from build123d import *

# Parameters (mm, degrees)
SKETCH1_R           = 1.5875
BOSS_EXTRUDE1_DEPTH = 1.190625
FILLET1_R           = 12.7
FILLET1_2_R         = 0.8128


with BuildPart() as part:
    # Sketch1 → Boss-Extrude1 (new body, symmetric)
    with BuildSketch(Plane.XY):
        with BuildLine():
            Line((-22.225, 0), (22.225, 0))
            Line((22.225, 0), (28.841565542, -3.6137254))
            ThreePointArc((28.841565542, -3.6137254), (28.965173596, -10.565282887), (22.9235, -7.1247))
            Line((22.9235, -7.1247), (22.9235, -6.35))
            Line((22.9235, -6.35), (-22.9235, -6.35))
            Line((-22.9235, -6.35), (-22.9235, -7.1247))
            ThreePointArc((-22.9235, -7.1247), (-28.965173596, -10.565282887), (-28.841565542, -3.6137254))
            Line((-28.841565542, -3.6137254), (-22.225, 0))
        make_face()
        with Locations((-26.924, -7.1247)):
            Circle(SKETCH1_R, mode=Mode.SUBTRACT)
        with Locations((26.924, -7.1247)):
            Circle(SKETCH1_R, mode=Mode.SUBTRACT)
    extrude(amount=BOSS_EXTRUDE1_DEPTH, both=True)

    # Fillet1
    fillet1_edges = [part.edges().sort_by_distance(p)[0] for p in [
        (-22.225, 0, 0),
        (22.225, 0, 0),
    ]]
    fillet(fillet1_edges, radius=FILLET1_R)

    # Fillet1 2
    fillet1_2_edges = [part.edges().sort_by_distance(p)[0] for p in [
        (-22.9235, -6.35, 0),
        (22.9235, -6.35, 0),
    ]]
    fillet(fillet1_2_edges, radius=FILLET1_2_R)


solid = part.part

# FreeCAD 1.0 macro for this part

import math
import FreeCAD as App
import Part
import Sketcher
Q = App.Units.Quantity


def edges_at(feature, points):
    """Names of the edges that pass closest to the given points."""
    edges = feature.Shape.Edges
    near = lambda p: min(range(len(edges)), key=lambda i: edges[i].distToShape(Part.Vertex(*p))[0])
    return sorted({f"Edge{near(p) + 1}" for p in points})

doc = App.newDocument("Part")
body = doc.addObject("PartDesign::Body", "Body")

# Sketch on XY plane
sketch1 = doc.addObject("Sketcher::SketchObject", "Sketch")
body.addObject(sketch1)
sketch1.AttachmentSupport = (doc.XY_Plane, [""])
sketch1.MapMode = "FlatFace"
sketch1.addGeometry([
    Part.LineSegment(App.Vector(22.225, 0, 0), App.Vector(-22.225, 0, 0)),  # 0
    Part.LineSegment(App.Vector(-22.225, 0, 0), App.Vector(-28.841566, -3.613725, 0)),  # 1
    Part.ArcOfCircle(Part.Circle(App.Vector(-26.924, -7.1247, 0), App.Vector(0, 0, 1), 4.0005), math.radians(118.641748), math.radians(360)),  # 2
    Part.LineSegment(App.Vector(-22.9235, -7.1247, 0), App.Vector(-22.9235, -6.35, 0)),  # 3
    Part.LineSegment(App.Vector(-22.9235, -6.35, 0), App.Vector(22.9235, -6.35, 0)),  # 4
    Part.LineSegment(App.Vector(22.9235, -6.35, 0), App.Vector(22.9235, -7.1247, 0)),  # 5
    Part.ArcOfCircle(Part.Circle(App.Vector(26.924, -7.1247, 0), App.Vector(0, 0, 1), 4.0005), math.radians(180), math.radians(421.358252)),  # 6
    Part.LineSegment(App.Vector(28.841566, -3.613725, 0), App.Vector(22.225, 0, 0)),  # 7
    Part.Circle(App.Vector(26.924, -7.1247, 0), App.Vector(0, 0, 1), 1.5875),  # 8
    Part.Circle(App.Vector(-26.924, -7.1247, 0), App.Vector(0, 0, 1), 1.5875),  # 9
], False)
sketch1.addConstraint([
    Sketcher.Constraint("Coincident", 0, 2, 1, 1),
    Sketcher.Constraint("Tangent", 1, 2, 2, 1),
    Sketcher.Constraint("Tangent", 2, 2, 3, 1),
    Sketcher.Constraint("Coincident", 3, 2, 4, 1),
    Sketcher.Constraint("Coincident", 4, 2, 5, 1),
    Sketcher.Constraint("Tangent", 5, 2, 6, 1),
    Sketcher.Constraint("Tangent", 6, 2, 7, 1),
    Sketcher.Constraint("Coincident", 7, 2, 0, 1),
    Sketcher.Constraint("Horizontal", 0),
    Sketcher.Constraint("Vertical", 3),
    Sketcher.Constraint("Horizontal", 4),
    Sketcher.Constraint("Vertical", 5),
    Sketcher.Constraint("Coincident", 8, 3, 6, 3),
    Sketcher.Constraint("Coincident", 9, 3, 2, 3),
    Sketcher.Constraint("Equal", 2, 6),
    Sketcher.Constraint("Equal", 8, 9),
    Sketcher.Constraint("Symmetric", 0, 2, 7, 2, -1, 1),
    Sketcher.Constraint("Symmetric", 2, 3, 6, 3, -2),
    Sketcher.Constraint("Diameter", 8, Q("0.125 in")),
    Sketcher.Constraint("DistanceX", 0, 2, 0, 1, Q("1.75 in")),
    Sketcher.Constraint("Radius", 2, Q("0.1575 in")),
    Sketcher.Constraint("DistanceX", 4, 1, 4, 2, Q("1.805 in")),
    Sketcher.Constraint("DistanceY", 3, 2, -1, 1, Q("0.25 in")),
    Sketcher.Constraint("DistanceY", 3, 1, 3, 2, Q("0.0305 in")),
])
pad1 = doc.addObject("PartDesign::Pad", "Pad")
body.addObject(pad1)
pad1.Profile = sketch1
pad1.Length = Q("0.09375 in")
pad1.Midplane = True
doc.recompute()

fillet = doc.addObject("PartDesign::Fillet", "Fillet")
body.addObject(fillet)
fillet.Base = (pad1, edges_at(pad1, [(-22.225, 0, 0), (22.225, 0, 0)]))
fillet.Radius = Q("0.5 in")
doc.recompute()

fillet2 = doc.addObject("PartDesign::Fillet", "Fillet001")
body.addObject(fillet2)
fillet2.Base = (fillet, edges_at(fillet, [(-22.924, -6.35, 0), (22.924, -6.35, 0)]))
fillet2.Radius = Q("0.032 in")

doc.recompute()
